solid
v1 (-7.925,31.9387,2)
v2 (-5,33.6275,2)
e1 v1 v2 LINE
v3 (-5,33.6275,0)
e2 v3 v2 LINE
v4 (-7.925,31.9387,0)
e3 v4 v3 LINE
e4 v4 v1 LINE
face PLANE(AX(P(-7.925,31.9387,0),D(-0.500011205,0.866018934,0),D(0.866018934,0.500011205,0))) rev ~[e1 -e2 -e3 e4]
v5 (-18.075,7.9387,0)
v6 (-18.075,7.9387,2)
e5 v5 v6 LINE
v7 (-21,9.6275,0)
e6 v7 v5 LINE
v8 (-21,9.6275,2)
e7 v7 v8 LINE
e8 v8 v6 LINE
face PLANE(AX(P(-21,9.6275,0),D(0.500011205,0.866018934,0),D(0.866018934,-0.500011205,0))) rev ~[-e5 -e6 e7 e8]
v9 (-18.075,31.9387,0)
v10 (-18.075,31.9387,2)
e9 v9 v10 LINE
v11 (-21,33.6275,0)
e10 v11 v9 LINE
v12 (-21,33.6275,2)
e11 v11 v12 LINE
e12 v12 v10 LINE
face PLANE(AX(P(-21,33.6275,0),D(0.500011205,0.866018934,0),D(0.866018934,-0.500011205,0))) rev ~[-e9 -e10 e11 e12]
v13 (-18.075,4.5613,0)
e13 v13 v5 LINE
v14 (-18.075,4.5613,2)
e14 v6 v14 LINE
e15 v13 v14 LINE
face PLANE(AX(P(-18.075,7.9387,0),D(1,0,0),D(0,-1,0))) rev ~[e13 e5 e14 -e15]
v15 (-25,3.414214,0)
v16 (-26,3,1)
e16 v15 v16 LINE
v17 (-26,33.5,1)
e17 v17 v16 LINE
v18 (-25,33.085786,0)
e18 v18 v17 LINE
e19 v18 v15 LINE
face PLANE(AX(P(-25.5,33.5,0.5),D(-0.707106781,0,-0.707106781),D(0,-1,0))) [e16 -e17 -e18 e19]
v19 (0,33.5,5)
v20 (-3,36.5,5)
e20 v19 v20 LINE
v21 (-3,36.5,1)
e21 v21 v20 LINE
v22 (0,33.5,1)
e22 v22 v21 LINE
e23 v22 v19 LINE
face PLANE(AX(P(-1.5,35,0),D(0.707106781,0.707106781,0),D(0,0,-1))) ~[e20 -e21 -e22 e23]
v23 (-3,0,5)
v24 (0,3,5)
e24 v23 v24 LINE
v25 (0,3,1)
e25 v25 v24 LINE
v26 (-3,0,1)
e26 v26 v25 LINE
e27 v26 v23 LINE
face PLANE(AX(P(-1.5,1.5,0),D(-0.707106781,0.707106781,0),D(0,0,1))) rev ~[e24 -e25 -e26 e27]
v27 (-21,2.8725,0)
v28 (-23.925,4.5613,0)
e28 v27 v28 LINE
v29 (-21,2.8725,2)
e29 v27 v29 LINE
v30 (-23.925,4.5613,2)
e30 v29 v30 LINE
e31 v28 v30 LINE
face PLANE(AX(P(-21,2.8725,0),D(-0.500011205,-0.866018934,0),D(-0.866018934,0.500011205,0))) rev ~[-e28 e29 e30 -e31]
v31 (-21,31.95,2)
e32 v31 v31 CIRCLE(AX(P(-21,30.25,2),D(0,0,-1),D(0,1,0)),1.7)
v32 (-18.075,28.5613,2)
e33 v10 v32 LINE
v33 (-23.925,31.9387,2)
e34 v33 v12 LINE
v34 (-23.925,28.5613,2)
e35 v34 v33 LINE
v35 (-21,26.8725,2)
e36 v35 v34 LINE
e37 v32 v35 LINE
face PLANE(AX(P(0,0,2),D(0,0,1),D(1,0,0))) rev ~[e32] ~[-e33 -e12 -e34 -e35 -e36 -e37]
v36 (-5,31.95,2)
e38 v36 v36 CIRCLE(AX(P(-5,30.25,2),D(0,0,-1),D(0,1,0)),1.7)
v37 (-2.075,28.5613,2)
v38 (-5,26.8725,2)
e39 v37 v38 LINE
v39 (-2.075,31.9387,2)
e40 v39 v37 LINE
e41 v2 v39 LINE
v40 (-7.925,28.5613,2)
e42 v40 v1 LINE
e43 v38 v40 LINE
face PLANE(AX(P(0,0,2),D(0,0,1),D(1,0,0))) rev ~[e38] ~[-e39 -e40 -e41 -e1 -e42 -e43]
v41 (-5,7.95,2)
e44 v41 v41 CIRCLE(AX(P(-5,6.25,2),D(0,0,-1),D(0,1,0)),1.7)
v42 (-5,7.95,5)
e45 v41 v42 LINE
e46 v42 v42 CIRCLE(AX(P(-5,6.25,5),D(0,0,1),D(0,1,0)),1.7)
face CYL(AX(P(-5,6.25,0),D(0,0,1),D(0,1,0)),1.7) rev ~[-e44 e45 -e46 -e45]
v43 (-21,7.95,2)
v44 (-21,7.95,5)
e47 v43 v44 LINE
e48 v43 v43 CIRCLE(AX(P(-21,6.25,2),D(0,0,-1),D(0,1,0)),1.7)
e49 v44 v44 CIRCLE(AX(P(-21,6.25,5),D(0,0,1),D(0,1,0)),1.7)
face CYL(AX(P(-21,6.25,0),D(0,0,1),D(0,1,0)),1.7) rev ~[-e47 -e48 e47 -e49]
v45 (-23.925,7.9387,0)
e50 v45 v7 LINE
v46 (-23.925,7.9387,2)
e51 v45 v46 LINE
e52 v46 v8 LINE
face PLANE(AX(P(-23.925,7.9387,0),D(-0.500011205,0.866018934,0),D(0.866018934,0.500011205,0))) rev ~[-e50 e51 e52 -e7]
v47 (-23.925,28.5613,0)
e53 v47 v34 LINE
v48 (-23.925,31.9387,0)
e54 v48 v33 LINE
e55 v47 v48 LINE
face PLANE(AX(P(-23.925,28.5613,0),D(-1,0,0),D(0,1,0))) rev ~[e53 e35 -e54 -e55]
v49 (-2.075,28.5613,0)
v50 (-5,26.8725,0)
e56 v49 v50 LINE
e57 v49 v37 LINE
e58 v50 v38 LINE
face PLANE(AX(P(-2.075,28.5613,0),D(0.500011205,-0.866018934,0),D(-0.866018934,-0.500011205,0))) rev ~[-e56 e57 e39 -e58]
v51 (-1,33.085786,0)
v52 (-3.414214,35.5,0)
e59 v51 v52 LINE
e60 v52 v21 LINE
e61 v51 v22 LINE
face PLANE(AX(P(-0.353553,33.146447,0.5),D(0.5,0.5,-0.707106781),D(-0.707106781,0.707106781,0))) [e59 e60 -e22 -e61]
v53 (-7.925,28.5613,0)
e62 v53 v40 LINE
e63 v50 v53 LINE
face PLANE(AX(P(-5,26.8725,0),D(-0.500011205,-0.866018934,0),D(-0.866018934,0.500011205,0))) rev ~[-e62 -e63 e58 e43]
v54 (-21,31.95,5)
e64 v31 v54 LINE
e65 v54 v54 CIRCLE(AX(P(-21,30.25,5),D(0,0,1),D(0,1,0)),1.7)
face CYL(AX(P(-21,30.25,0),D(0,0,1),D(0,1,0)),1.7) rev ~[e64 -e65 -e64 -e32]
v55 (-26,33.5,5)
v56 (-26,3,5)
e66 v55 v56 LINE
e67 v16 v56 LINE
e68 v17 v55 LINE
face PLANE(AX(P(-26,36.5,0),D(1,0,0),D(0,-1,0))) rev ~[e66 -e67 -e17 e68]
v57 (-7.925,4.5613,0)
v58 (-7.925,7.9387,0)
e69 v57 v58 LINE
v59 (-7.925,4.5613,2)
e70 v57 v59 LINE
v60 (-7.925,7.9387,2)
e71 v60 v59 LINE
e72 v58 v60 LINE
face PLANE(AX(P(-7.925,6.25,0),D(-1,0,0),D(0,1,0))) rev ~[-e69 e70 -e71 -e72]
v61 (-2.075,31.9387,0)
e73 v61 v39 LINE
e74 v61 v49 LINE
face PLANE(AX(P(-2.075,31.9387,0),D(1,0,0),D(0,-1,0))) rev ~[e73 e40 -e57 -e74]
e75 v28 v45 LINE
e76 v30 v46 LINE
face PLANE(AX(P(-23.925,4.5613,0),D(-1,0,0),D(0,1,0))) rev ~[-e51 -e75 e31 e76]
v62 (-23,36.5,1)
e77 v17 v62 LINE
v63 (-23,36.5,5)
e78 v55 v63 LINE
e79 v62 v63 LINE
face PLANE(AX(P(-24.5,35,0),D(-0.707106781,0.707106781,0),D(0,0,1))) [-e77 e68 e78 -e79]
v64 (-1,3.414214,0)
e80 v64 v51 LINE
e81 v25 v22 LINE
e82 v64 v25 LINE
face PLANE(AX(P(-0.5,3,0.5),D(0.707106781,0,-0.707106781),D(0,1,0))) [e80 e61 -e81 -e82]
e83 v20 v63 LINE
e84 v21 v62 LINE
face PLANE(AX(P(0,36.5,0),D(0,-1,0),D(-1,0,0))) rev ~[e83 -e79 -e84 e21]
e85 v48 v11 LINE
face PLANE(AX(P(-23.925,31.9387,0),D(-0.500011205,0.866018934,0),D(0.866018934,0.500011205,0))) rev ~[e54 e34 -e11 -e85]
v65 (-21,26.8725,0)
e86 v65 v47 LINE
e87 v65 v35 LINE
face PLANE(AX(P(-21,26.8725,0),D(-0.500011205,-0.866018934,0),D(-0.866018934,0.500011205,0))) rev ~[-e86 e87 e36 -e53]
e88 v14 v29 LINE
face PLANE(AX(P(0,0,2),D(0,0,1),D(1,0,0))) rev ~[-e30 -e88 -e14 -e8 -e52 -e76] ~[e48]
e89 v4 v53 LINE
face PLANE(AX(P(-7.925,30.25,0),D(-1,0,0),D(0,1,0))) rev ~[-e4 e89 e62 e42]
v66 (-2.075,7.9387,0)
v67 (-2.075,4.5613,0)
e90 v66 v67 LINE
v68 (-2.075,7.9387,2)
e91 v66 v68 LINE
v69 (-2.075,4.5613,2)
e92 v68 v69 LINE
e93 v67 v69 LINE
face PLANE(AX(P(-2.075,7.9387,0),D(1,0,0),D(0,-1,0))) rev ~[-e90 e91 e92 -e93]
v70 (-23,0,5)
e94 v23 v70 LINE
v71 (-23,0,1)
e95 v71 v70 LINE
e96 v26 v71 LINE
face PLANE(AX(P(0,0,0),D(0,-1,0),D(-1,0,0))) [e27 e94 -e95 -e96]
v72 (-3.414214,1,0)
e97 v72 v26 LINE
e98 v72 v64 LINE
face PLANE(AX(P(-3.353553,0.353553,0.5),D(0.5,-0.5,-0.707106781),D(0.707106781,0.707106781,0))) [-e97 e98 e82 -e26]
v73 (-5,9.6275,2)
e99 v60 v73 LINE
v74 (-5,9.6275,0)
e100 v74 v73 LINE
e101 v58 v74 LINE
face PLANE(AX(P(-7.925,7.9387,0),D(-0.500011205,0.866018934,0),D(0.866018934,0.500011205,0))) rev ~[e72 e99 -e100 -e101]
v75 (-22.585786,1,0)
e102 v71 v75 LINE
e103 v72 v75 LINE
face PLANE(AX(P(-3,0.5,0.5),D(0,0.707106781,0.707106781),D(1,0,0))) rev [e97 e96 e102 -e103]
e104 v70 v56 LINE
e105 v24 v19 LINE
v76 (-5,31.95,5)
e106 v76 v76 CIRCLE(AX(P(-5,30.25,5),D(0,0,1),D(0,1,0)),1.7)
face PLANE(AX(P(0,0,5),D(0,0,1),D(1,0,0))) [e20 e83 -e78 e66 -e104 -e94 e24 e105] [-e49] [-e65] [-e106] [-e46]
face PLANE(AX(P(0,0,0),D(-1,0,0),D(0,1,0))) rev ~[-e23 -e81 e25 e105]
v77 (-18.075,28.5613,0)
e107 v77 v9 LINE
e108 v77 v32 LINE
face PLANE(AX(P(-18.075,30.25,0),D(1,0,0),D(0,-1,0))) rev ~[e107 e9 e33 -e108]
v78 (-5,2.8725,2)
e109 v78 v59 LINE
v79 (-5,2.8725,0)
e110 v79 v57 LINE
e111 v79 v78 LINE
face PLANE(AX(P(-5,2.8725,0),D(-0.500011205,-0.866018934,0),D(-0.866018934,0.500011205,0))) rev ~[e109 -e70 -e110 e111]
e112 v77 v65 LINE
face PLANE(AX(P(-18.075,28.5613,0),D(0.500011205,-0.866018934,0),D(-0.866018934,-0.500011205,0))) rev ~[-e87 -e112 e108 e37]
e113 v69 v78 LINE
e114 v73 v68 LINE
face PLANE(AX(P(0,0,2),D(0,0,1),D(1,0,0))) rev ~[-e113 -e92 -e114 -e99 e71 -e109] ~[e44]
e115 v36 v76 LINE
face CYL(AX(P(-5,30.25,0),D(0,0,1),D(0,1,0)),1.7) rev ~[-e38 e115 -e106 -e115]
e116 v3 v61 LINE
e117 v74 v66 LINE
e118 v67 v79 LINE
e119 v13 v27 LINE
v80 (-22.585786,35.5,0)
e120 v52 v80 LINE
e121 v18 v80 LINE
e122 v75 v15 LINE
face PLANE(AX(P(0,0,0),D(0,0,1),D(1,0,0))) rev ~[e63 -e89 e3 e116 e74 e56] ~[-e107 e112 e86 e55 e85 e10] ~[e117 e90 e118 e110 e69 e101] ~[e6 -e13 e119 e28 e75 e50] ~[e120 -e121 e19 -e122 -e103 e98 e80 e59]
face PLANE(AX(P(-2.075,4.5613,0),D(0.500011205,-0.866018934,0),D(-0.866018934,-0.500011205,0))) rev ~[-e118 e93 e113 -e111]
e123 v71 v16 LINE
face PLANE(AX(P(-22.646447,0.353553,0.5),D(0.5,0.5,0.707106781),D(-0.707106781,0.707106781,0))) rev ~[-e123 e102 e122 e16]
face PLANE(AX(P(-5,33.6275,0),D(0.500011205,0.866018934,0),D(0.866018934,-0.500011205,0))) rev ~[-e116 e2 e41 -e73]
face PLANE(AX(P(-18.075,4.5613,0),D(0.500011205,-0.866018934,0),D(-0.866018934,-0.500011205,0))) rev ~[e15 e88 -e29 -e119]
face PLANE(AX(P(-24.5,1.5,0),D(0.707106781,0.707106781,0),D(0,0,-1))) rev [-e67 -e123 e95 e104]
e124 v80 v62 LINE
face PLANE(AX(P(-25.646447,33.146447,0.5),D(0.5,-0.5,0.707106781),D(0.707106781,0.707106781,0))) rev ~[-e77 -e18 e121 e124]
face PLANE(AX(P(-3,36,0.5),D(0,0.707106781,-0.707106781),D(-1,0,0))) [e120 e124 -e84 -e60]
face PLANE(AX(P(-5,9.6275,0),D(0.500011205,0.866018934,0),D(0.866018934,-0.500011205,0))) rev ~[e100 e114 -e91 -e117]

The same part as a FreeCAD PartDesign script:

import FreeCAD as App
import Part
import Sketcher
Q = App.Units.Quantity


def edges_at(feature, points):
    """Names of the edges that pass closest to the given points."""
    edges = feature.Shape.Edges
    near = lambda p: min(range(len(edges)), key=lambda i: edges[i].distToShape(Part.Vertex(*p))[0])
    return sorted({f"Edge{near(p) + 1}" for p in points})

doc = App.newDocument("Part")
body = doc.addObject("PartDesign::Body", "Body")

sketch1 = body.newObject("Sketcher::SketchObject", "Sketch")
sketch1.AttachmentSupport = (doc.getObject("XY_Plane"), [""])
sketch1.MapMode = "FlatFace"
sketch1.addGeometry([
    Part.LineSegment(App.Vector(-26, 0, 0), App.Vector(0, 0, 0)),
    Part.LineSegment(App.Vector(0, 0, 0), App.Vector(0, 36, 0)),
    Part.LineSegment(App.Vector(0, 36, 0), App.Vector(-26, 36, 0)),
    Part.LineSegment(App.Vector(-26, 36, 0), App.Vector(-26, 0, 0)),
], False)
sketch1.addConstraint([
    Sketcher.Constraint("Coincident", 0, 2, 1, 1),
    Sketcher.Constraint("Coincident", 1, 2, 2, 1),
    Sketcher.Constraint("Coincident", 2, 2, 3, 1),
    Sketcher.Constraint("Coincident", 3, 2, 0, 1),
    Sketcher.Constraint("Horizontal", 0),
    Sketcher.Constraint("Vertical", 1),
    Sketcher.Constraint("Horizontal", 2),
    Sketcher.Constraint("Vertical", 3),
    Sketcher.Constraint("Coincident", 0, 2, -1, 1),
    Sketcher.Constraint("DistanceX", 0, 1, 0, 2, 26.0),
    Sketcher.Constraint("DistanceY", 1, 1, 1, 2, 36.5),
])
pad1 = body.newObject("PartDesign::Pad", "Pad")
pad1.Profile = sketch1
pad1.Length = 5

sketch2 = body.newObject("Sketcher::SketchObject", "Sketch001")
sketch2.AttachmentSupport = (doc.getObject("XY_Plane"), [""])
sketch2.MapMode = "FlatFace"
sketch2.addGeometry([
    Part.Circle(App.Vector(8.2, 51.5, 0), App.Vector(0, 0, 1), 1.7),
    Part.Circle(App.Vector(-5, 30.2, 0), App.Vector(0, 0, 1), 1.7),
    Part.Circle(App.Vector(-21, 30.2, 0), App.Vector(0, 0, 1), 1.7),
    Part.Circle(App.Vector(-21, 6.2, 0), App.Vector(0, 0, 1), 1.7),
    Part.Circle(App.Vector(-5, 6.2, 0), App.Vector(0, 0, 1), 1.7),
], False)
sketch2.addConstraint([
    Sketcher.Constraint("Equal", 0, 1),
    Sketcher.Constraint("Equal", 1, 2),
    Sketcher.Constraint("Equal", 2, 3),
    Sketcher.Constraint("Equal", 3, 4),
    Sketcher.Constraint("Horizontal", 1, 3, 2, 3),
    Sketcher.Constraint("Horizontal", 3, 3, 4, 3),
    Sketcher.Constraint("Vertical", 2, 3, 3, 3),
    Sketcher.Constraint("Vertical", 1, 3, 4, 3),
    Sketcher.Constraint("Diameter", 0, 3.4),
    Sketcher.Constraint("DistanceX", 1, 3, -1, 1, 5.0),
    Sketcher.Constraint("DistanceX", 2, 3, -1, 1, 21.0),
    Sketcher.Constraint("DistanceY", 3, 3, 2, 3, 24.0),
    Sketcher.Constraint("DistanceY", -1, 1, 1, 3, 30.25),
    Sketcher.Constraint("DistanceY", -1, 1, 0, 3, 51.467),
    Sketcher.Constraint("DistanceX", -1, 1, 0, 3, 8.2274),
])
doc.recompute()
hole = body.newObject("PartDesign::Hole", "Hole")
hole.Profile = sketch2
hole.ThreadType = "None"
hole.Diameter = 3.4
hole.DepthType = "ThroughAll"
hole.Reversed = True
doc.recompute()

chamfer = body.newObject("PartDesign::Chamfer", "Chamfer")
chamfer.Base = (hole, edges_at(hole, [
    (0, 0, 2.5),
    (-26, 0, 2.5),
    (-26, 36.5, 2.5),
    (0, 36.5, 2.5),
]))
chamfer.Size = 3

sketch3 = body.newObject("Sketcher::SketchObject", "Sketch002")
sketch3.AttachmentSupport = (doc.getObject("XY_Plane"), [""])
sketch3.MapMode = "FlatFace"
sketch3.addGeometry([
    Part.LineSegment(App.Vector(-18.1, 28.6, 0), App.Vector(-18.1, 31.9, 0)),
    Part.LineSegment(App.Vector(-18.1, 31.9, 0), App.Vector(-21, 33.6, 0)),
    Part.LineSegment(App.Vector(-21, 33.6, 0), App.Vector(-23.9, 31.9, 0)),
    Part.LineSegment(App.Vector(-23.9, 31.9, 0), App.Vector(-23.9, 28.6, 0)),
    Part.LineSegment(App.Vector(-23.9, 28.6, 0), App.Vector(-21, 26.9, 0)),
    Part.LineSegment(App.Vector(-21, 26.9, 0), App.Vector(-18.1, 28.6, 0)),
    Part.Circle(App.Vector(-21, 30.2, 0), App.Vector(0, 0, 1), 1.7),
    Part.LineSegment(App.Vector(-7.9, 31.9, 0), App.Vector(-7.9, 28.6, 0)),
    Part.LineSegment(App.Vector(-7.9, 28.6, 0), App.Vector(-5, 26.9, 0)),
    Part.LineSegment(App.Vector(-5, 26.9, 0), App.Vector(-2.1, 28.6, 0)),
    Part.LineSegment(App.Vector(-2.1, 28.6, 0), App.Vector(-2.1, 31.9, 0)),
    Part.LineSegment(App.Vector(-2.1, 31.9, 0), App.Vector(-5, 33.6, 0)),
    Part.LineSegment(App.Vector(-5, 33.6, 0), App.Vector(-7.9, 31.9, 0)),
    Part.Circle(App.Vector(-5, 30.2, 0), App.Vector(0, 0, 1), 1.7),
    Part.LineSegment(App.Vector(-18.1, 7.9, 0), App.Vector(-21, 9.6, 0)),
    Part.LineSegment(App.Vector(-21, 9.6, 0), App.Vector(-23.9, 7.9, 0)),
    Part.LineSegment(App.Vector(-23.9, 7.9, 0), App.Vector(-23.9, 4.6, 0)),
    Part.LineSegment(App.Vector(-23.9, 4.6, 0), App.Vector(-21, 2.9, 0)),
    Part.LineSegment(App.Vector(-21, 2.9, 0), App.Vector(-18.1, 4.6, 0)),
    Part.LineSegment(App.Vector(-18.1, 4.6, 0), App.Vector(-18.1, 7.9, 0)),
    Part.Circle(App.Vector(-21, 6.2, 0), App.Vector(0, 0, 1), 1.7),
    Part.LineSegment(App.Vector(-2.1, 7.9, 0), App.Vector(-5, 9.6, 0)),
    Part.LineSegment(App.Vector(-5, 9.6, 0), App.Vector(-7.9, 7.9, 0)),
    Part.LineSegment(App.Vector(-7.9, 7.9, 0), App.Vector(-7.9, 4.6, 0)),
    Part.LineSegment(App.Vector(-7.9, 4.6, 0), App.Vector(-5, 2.9, 0)),
    Part.LineSegment(App.Vector(-5, 2.9, 0), App.Vector(-2.1, 4.6, 0)),
    Part.LineSegment(App.Vector(-2.1, 4.6, 0), App.Vector(-2.1, 7.9, 0)),
    Part.Circle(App.Vector(-5, 6.2, 0), App.Vector(0, 0, 1), 1.7),
], False)
sketch3.addConstraint([
    Sketcher.Constraint("Coincident", 0, 2, 1, 1),
    Sketcher.Constraint("Coincident", 1, 2, 2, 1),
    Sketcher.Constraint("Coincident", 2, 2, 3, 1),
    Sketcher.Constraint("Coincident", 3, 2, 4, 1),
    Sketcher.Constraint("Coincident", 4, 2, 5, 1),
    Sketcher.Constraint("Coincident", 5, 2, 0, 1),
    Sketcher.Constraint("Coincident", 7, 2, 8, 1),
    Sketcher.Constraint("Coincident", 8, 2, 9, 1),
    Sketcher.Constraint("Coincident", 9, 2, 10, 1),
    Sketcher.Constraint("Coincident", 10, 2, 11, 1),
    Sketcher.Constraint("Coincident", 11, 2, 12, 1),
    Sketcher.Constraint("Coincident", 12, 2, 7, 1),
    Sketcher.Constraint("Coincident", 14, 2, 15, 1),
    Sketcher.Constraint("Coincident", 15, 2, 16, 1),
    Sketcher.Constraint("Coincident", 16, 2, 17, 1),
    Sketcher.Constraint("Coincident", 17, 2, 18, 1),
    Sketcher.Constraint("Coincident", 18, 2, 19, 1),
    Sketcher.Constraint("Coincident", 19, 2, 14, 1),
    Sketcher.Constraint("Coincident", 21, 2, 22, 1),
    Sketcher.Constraint("Coincident", 22, 2, 23, 1),
    Sketcher.Constraint("Coincident", 23, 2, 24, 1),
    Sketcher.Constraint("Coincident", 24, 2, 25, 1),
    Sketcher.Constraint("Coincident", 25, 2, 26, 1),
    Sketcher.Constraint("Coincident", 26, 2, 21, 1),
    Sketcher.Constraint("Vertical", 0),
    Sketcher.Constraint("Vertical", 3),
    Sketcher.Constraint("Vertical", 7),
    Sketcher.Constraint("Vertical", 10),
    Sketcher.Constraint("Vertical", 16),
    Sketcher.Constraint("Vertical", 19),
    Sketcher.Constraint("Vertical", 23),
    Sketcher.Constraint("Vertical", 26),
    Sketcher.Constraint("Equal", 6, 13),
    Sketcher.Constraint("Equal", 13, 20),
    Sketcher.Constraint("Equal", 20, 27),
    Sketcher.Constraint("Parallel", 1, 4),
    Sketcher.Constraint("Parallel", 2, 5),
    Sketcher.Constraint("Parallel", 4, 8),
    Sketcher.Constraint("Parallel", 5, 9),
    Sketcher.Constraint("Parallel", 8, 11),
    Sketcher.Constraint("Parallel", 9, 12),
    Sketcher.Constraint("Parallel", 11, 14),
    Sketcher.Constraint("Parallel", 12, 15),
    Sketcher.Constraint("Parallel", 14, 17),
    Sketcher.Constraint("Parallel", 15, 18),
    Sketcher.Constraint("Parallel", 17, 21),
    Sketcher.Constraint("Parallel", 18, 22),
    Sketcher.Constraint("Parallel", 21, 24),
    Sketcher.Constraint("Parallel", 22, 25),
    Sketcher.Constraint("Horizontal", 6, 3, 13, 3),
    Sketcher.Constraint("Horizontal", 20, 3, 27, 3),
    Sketcher.Constraint("Horizontal", 0, 2, 2, 2),
    Sketcher.Constraint("Horizontal", 3, 2, 5, 2),
    Sketcher.Constraint("Horizontal", 5, 2, 7, 2),
    Sketcher.Constraint("Horizontal", 4, 2, 8, 2),
    Sketcher.Constraint("Horizontal", 7, 2, 9, 2),
    Sketcher.Constraint("Horizontal", 2, 2, 10, 2),
    Sketcher.Constraint("Horizontal", 1, 2, 11, 2),
    Sketcher.Constraint("Horizontal", 16, 2, 18, 2),
    Sketcher.Constraint("Horizontal", 15, 2, 19, 2),
    Sketcher.Constraint("Horizontal", 14, 2, 21, 2),
    Sketcher.Constraint("Horizontal", 19, 2, 22, 2),
    Sketcher.Constraint("Horizontal", 18, 2, 23, 2),
    Sketcher.Constraint("Horizontal", 17, 2, 24, 2),
    Sketcher.Constraint("Horizontal", 23, 2, 25, 2),
    Sketcher.Constraint("Vertical", 6, 3, 20, 3),
    Sketcher.Constraint("Vertical", 13, 3, 27, 3),
    Sketcher.Constraint("Vertical", 20, 3, 1, 2),
    Sketcher.Constraint("Vertical", 1, 2, 4, 2),
    Sketcher.Constraint("Vertical", 27, 3, 8, 2),
    Sketcher.Constraint("Vertical", 4, 2, 14, 2),
    Sketcher.Constraint("Vertical", 3, 2, 15, 2),
    Sketcher.Constraint("Vertical", 11, 2, 21, 2),
    Sketcher.Constraint("Equal", 10, 16),
    Sketcher.Constraint("Diameter", 6, 3.4),
    Sketcher.Constraint("Angle", 1, Q("149.9993 deg")),
    Sketcher.Constraint("DistanceX", 2, 2, 0, 2, 5.85),
    Sketcher.Constraint("DistanceX", 6, 3, -1, 1, 21.0),
    Sketcher.Constraint("DistanceX", 13, 3, -1, 1, 5.0),
    Sketcher.Constraint("DistanceY", 20, 3, 6, 3, 24.0),
    Sketcher.Constraint("DistanceY", -1, 1, 6, 3, 30.25),
    Sketcher.Constraint("DistanceY", 0, 1, 0, 2, 3.3774),
    Sketcher.Constraint("DistanceY", 14, 2, 4, 2, 17.245),
    Sketcher.Constraint("DistanceY", -1, 1, 0, 2, 31.9387),
])
pocket1 = body.newObject("PartDesign::Pocket", "Pocket")
pocket1.Profile = sketch3
pocket1.Length = 2
pocket1.Reversed = True
doc.recompute()

chamfer2 = body.newObject("PartDesign::Chamfer", "Chamfer001")
chamfer2.Base = (pocket1, edges_at(pocket1, [
    (-1.5, 1.5, 0),
    (-13, 0, 0),
    (-24.5, 1.5, 0),
    (-26, 18.25, 0),
    (-13, 36.5, 0),
    (-1.5, 35, 0),
    (-24.5, 35, 0),
    (0, 18.25, 0),
]))
chamfer2.Size = 1

doc.recompute()
